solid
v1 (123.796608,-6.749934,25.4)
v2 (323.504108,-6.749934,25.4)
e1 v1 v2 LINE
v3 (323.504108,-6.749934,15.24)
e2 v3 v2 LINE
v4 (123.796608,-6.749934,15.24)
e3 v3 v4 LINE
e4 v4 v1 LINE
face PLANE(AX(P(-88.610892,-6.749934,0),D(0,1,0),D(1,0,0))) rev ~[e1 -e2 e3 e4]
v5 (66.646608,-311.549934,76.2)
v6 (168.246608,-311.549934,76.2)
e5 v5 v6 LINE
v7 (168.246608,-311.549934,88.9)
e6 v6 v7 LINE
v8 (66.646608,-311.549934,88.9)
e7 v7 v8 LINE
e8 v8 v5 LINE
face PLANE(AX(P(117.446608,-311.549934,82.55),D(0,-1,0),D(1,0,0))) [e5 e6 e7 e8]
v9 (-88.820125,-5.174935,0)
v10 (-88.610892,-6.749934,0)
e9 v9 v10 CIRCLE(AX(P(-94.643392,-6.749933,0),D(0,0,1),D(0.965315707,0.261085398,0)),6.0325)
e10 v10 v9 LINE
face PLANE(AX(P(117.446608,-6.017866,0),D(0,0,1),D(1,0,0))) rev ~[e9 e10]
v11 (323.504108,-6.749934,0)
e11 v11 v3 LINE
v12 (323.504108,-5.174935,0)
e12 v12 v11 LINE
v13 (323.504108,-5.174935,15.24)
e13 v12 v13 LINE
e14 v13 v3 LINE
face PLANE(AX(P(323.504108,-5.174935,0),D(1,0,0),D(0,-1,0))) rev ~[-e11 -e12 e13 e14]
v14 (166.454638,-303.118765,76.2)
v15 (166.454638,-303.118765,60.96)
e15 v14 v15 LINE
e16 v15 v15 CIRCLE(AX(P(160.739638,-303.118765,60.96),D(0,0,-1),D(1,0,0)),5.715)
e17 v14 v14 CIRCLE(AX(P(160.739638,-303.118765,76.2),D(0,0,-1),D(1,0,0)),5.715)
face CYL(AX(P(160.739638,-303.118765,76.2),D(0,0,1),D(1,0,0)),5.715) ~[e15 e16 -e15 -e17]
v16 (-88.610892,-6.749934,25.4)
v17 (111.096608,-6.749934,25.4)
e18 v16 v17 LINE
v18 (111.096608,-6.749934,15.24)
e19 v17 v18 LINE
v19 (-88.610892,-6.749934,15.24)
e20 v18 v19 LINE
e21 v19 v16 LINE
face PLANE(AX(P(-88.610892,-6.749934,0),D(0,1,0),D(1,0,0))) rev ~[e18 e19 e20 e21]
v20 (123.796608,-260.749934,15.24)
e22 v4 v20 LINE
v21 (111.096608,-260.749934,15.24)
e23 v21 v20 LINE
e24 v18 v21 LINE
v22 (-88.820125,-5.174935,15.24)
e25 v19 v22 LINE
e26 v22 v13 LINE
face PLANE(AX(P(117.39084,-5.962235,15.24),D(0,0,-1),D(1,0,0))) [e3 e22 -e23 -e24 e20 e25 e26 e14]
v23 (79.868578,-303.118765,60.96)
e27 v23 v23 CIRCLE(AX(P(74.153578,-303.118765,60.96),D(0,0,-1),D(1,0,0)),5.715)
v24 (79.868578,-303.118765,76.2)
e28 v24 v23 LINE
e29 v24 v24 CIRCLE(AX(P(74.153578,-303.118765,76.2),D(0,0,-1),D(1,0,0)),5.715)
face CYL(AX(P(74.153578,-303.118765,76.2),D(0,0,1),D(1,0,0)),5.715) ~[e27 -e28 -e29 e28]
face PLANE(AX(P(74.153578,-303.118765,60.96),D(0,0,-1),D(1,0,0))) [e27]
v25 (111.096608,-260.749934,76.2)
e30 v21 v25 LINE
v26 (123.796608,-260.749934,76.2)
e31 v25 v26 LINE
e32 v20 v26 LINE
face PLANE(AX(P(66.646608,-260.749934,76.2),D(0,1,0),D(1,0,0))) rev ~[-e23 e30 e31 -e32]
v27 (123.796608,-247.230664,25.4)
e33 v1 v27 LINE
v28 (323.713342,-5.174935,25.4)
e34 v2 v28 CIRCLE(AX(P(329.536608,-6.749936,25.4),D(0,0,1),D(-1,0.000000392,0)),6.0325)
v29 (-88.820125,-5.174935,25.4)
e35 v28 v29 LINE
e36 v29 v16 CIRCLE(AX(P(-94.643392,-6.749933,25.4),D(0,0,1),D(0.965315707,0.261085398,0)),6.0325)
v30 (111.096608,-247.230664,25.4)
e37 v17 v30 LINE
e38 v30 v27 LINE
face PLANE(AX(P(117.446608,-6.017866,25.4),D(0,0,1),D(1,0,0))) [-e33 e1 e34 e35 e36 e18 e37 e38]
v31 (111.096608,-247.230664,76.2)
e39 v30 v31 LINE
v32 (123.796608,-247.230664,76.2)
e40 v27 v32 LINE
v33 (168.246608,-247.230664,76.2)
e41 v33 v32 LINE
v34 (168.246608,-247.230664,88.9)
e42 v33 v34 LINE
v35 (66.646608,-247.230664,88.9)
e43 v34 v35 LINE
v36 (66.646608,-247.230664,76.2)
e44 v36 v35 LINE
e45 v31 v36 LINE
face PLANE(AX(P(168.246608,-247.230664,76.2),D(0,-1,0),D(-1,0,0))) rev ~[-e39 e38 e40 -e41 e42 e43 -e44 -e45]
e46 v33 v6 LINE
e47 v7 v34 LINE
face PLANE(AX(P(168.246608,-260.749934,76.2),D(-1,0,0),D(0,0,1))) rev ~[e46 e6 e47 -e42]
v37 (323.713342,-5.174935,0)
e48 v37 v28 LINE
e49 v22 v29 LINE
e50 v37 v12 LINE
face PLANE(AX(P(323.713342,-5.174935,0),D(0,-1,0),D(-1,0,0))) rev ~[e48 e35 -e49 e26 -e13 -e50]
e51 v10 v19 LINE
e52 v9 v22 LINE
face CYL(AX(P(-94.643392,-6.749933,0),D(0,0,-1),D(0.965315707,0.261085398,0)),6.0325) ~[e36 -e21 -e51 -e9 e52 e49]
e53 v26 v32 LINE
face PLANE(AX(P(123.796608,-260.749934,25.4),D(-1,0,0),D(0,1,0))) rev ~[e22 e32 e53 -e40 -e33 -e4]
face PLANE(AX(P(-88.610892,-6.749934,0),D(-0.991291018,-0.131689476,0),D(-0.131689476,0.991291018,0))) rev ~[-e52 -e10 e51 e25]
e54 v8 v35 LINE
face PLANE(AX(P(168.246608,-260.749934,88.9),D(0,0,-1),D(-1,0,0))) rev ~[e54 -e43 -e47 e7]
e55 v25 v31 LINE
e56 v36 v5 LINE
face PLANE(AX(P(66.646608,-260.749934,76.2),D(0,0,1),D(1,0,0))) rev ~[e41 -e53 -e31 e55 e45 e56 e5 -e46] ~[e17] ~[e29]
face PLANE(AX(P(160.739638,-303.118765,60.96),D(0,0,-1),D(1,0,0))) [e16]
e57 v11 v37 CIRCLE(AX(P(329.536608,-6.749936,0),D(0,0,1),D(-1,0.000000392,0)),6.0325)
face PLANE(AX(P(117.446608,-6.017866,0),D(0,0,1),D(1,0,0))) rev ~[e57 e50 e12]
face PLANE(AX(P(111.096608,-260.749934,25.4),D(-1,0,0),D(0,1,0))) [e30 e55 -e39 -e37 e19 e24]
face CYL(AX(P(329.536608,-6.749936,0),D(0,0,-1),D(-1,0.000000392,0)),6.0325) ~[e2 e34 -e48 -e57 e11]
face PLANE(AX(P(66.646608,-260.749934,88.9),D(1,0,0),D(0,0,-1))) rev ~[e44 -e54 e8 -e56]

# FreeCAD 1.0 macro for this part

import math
import FreeCAD as App
import Part
import Sketcher
from FreeCAD import Vector
Q = App.Units.Quantity

doc = App.newDocument("Part")
body = doc.addObject("PartDesign::Body", "Body")

sketch1 = body.newObject("Sketcher::SketchObject", "Sketch")
sketch1.AttachmentSupport = (doc.getObject("XY_Plane"), [""])
sketch1.MapMode = "FlatFace"
sketch1.addGeometry(Part.ArcOfCircle(Part.Circle(Vector(-94.643392, -6.749933, 0), Vector(0, 0, 1), 6.0325), math.radians(15.134476), math.radians(359.999988)), False)
sketch1.addGeometry(Part.LineSegment(Vector(-88.610892, -6.749934, 0), Vector(323.504108, -6.749934, 0)), False)
sketch1.addGeometry(Part.ArcOfCircle(Part.Circle(Vector(329.536608, -6.749936, 0), Vector(0, 0, 1), 6.0325), math.radians(179.999978), math.radians(524.865488)), False)
sketch1.addGeometry(Part.LineSegment(Vector(323.713342, -5.174935, 0), Vector(-88.820125, -5.174935, 0)), False)
sketch1.addConstraint(Sketcher.Constraint("Coincident", 0, 2, 1, 1))
sketch1.addConstraint(Sketcher.Constraint("Coincident", 1, 2, 2, 1))
sketch1.addConstraint(Sketcher.Constraint("Coincident", 2, 2, 3, 1))
sketch1.addConstraint(Sketcher.Constraint("Coincident", 3, 2, 0, 1))
sketch1.addConstraint(Sketcher.Constraint("Horizontal", 1))
sketch1.addConstraint(Sketcher.Constraint("Horizontal", 3))
sketch1.addConstraint(Sketcher.Constraint("Equal", 0, 2))
sketch1.addConstraint(Sketcher.Constraint("Radius", 0, Q("0.2375 in")))
sketch1.addConstraint(Sketcher.Constraint("DistanceX", 0, 3, 2, 3, Q("16.7 in")))
sketch1.addConstraint(Sketcher.Constraint("DistanceY", 1, 2, 2, 2, 1.574999))
sketch1.addConstraint(Sketcher.Constraint("DistanceY", 2, 3, 2, 2, 1.575001))
sketch1.addConstraint(Sketcher.Constraint("DistanceX", 3, 2, 3, 1, 412.533467))
sketch1.addConstraint(Sketcher.Constraint("DistanceX", 0, 3, -1, 1, 94.643392))
sketch1.addConstraint(Sketcher.Constraint("DistanceY", 0, 3, -1, 1, 6.749933))
pad1 = body.newObject("PartDesign::Pad", "Pad")
pad1.Profile = sketch1
pad1.Length = Q("1 in")

sketch2 = body.newObject("Sketcher::SketchObject", "Sketch001")
sketch2.AttachmentSupport = (doc.getObject("XY_Plane"), [""])
sketch2.MapMode = "FlatFace"
sketch2.addGeometry(Part.LineSegment(Vector(323.504108, -5.174935, 0), Vector(323.504108, -6.749934, 0)), False)
sketch2.addGeometry(Part.LineSegment(Vector(323.504108, -6.749934, 0), Vector(-88.610892, -6.749934, 0)), False)
sketch2.addGeometry(Part.LineSegment(Vector(-88.610892, -6.749934, 0), Vector(-88.820125, -5.174935, 0)), False)
sketch2.addGeometry(Part.LineSegment(Vector(-88.820125, -5.174935, 0), Vector(323.504108, -5.174935, 0)), False)
sketch2.addConstraint(Sketcher.Constraint("Coincident", 0, 2, 1, 1))
sketch2.addConstraint(Sketcher.Constraint("Coincident", 1, 2, 2, 1))
sketch2.addConstraint(Sketcher.Constraint("Coincident", 2, 2, 3, 1))
sketch2.addConstraint(Sketcher.Constraint("Coincident", 3, 2, 0, 1))
sketch2.addConstraint(Sketcher.Constraint("Vertical", 0))
sketch2.addConstraint(Sketcher.Constraint("Horizontal", 1))
sketch2.addConstraint(Sketcher.Constraint("Horizontal", 3))
sketch2.addConstraint(Sketcher.Constraint("DistanceX", 1, 2, 1, 1, Q("16.225 in")))
sketch2.addConstraint(Sketcher.Constraint("DistanceY", 0, 2, 0, 1, 1.574999))
sketch2.addConstraint(Sketcher.Constraint("DistanceX", 3, 1, 3, 2, 412.324233))
sketch2.addConstraint(Sketcher.Constraint("DistanceX", -1, 1, 0, 2, 323.504108))
sketch2.addConstraint(Sketcher.Constraint("DistanceY", 0, 2, -1, 1, 6.749934))
pocket1 = body.newObject("PartDesign::Pocket", "Pocket")
pocket1.Profile = sketch2
pocket1.Length = Q("0.6 in")
pocket1.Reversed = True

sketch3 = body.newObject("Sketcher::SketchObject", "Sketch002")
sketch3.AttachmentSupport = (doc.getObject("XZ_Plane"), [""])
sketch3.MapMode = "FlatFace"
sketch3.AttachmentOffset = App.Placement(Vector(0, 0, 6.749934), App.Rotation())
sketch3.addGeometry(Part.LineSegment(Vector(123.796608, 25.4, 0), Vector(111.096608, 25.4, 0)), False)
sketch3.addGeometry(Part.LineSegment(Vector(111.096608, 25.4, 0), Vector(111.096608, 15.24, 0)), False)
sketch3.addGeometry(Part.LineSegment(Vector(111.096608, 15.24, 0), Vector(123.796608, 15.24, 0)), False)
sketch3.addGeometry(Part.LineSegment(Vector(123.796608, 15.24, 0), Vector(123.796608, 25.4, 0)), False)
sketch3.addConstraint(Sketcher.Constraint("Coincident", 0, 2, 1, 1))
sketch3.addConstraint(Sketcher.Constraint("Coincident", 1, 2, 2, 1))
sketch3.addConstraint(Sketcher.Constraint("Coincident", 2, 2, 3, 1))
sketch3.addConstraint(Sketcher.Constraint("Coincident", 3, 2, 0, 1))
sketch3.addConstraint(Sketcher.Constraint("Horizontal", 0))
sketch3.addConstraint(Sketcher.Constraint("Vertical", 1))
sketch3.addConstraint(Sketcher.Constraint("Horizontal", 2))
sketch3.addConstraint(Sketcher.Constraint("Vertical", 3))
sketch3.addConstraint(Sketcher.Constraint("DistanceX", 0, 2, 0, 1, Q("0.5 in")))
sketch3.addConstraint(Sketcher.Constraint("DistanceY", 1, 2, 1, 1, Q("0.4 in")))
sketch3.addConstraint(Sketcher.Constraint("DistanceY", -1, 1, 0, 2, Q("1 in")))
sketch3.addConstraint(Sketcher.Constraint("DistanceX", -1, 1, 0, 2, 111.096608))
pad2 = body.newObject("PartDesign::Pad", "Pad001")
pad2.Profile = sketch3
pad2.Length = Q("10 in")

sketch4 = body.newObject("Sketcher::SketchObject", "Sketch003")
sketch4.AttachmentSupport = (doc.getObject("XY_Plane"), [""])
sketch4.MapMode = "FlatFace"
sketch4.AttachmentOffset = App.Placement(Vector(0, 0, 1 * 25.4), App.Rotation())
sketch4.addGeometry(Part.LineSegment(Vector(111.096608, -247.230664, 0), Vector(111.096608, -260.749934, 0)), False)
sketch4.addGeometry(Part.LineSegment(Vector(111.096608, -260.749934, 0), Vector(123.796608, -260.749934, 0)), False)
sketch4.addGeometry(Part.LineSegment(Vector(123.796608, -260.749934, 0), Vector(123.796608, -247.230664, 0)), False)
sketch4.addGeometry(Part.LineSegment(Vector(123.796608, -247.230664, 0), Vector(111.096608, -247.230664, 0)), False)
sketch4.addConstraint(Sketcher.Constraint("Coincident", 0, 2, 1, 1))
sketch4.addConstraint(Sketcher.Constraint("Coincident", 1, 2, 2, 1))
sketch4.addConstraint(Sketcher.Constraint("Coincident", 2, 2, 3, 1))
sketch4.addConstraint(Sketcher.Constraint("Coincident", 3, 2, 0, 1))
sketch4.addConstraint(Sketcher.Constraint("Vertical", 0))
sketch4.addConstraint(Sketcher.Constraint("Horizontal", 1))
sketch4.addConstraint(Sketcher.Constraint("Vertical", 2))
sketch4.addConstraint(Sketcher.Constraint("Horizontal", 3))
sketch4.addConstraint(Sketcher.Constraint("DistanceX", 1, 1, 1, 2, Q("0.5 in")))
sketch4.addConstraint(Sketcher.Constraint("DistanceY", 0, 2, 0, 1, 13.51927))
sketch4.addConstraint(Sketcher.Constraint("DistanceX", -1, 1, 0, 2, 111.096608))
sketch4.addConstraint(Sketcher.Constraint("DistanceY", 0, 2, -1, 1, 260.749934))
pad3 = body.newObject("PartDesign::Pad", "Pad002")
pad3.Profile = sketch4
pad3.Length = Q("2 in")

sketch5 = body.newObject("Sketcher::SketchObject", "Sketch004")
sketch5.AttachmentSupport = (doc.getObject("XY_Plane"), [""])
sketch5.MapMode = "FlatFace"
sketch5.AttachmentOffset = App.Placement(Vector(0, 0, 3 * 25.4), App.Rotation())
sketch5.addGeometry(Part.LineSegment(Vector(168.246608, -247.230664, 0), Vector(66.646608, -247.230664, 0)), False)
sketch5.addGeometry(Part.LineSegment(Vector(66.646608, -247.230664, 0), Vector(66.646608, -260.749934, 0)), False)
sketch5.addGeometry(Part.LineSegment(Vector(66.646608, -260.749934, 0), Vector(168.246608, -260.749934, 0)), False)
sketch5.addGeometry(Part.LineSegment(Vector(168.246608, -260.749934, 0), Vector(168.246608, -247.230664, 0)), False)
sketch5.addConstraint(Sketcher.Constraint("Coincident", 0, 2, 1, 1))
sketch5.addConstraint(Sketcher.Constraint("Coincident", 1, 2, 2, 1))
sketch5.addConstraint(Sketcher.Constraint("Coincident", 2, 2, 3, 1))
sketch5.addConstraint(Sketcher.Constraint("Coincident", 3, 2, 0, 1))
sketch5.addConstraint(Sketcher.Constraint("Horizontal", 0))
sketch5.addConstraint(Sketcher.Constraint("Vertical", 1))
sketch5.addConstraint(Sketcher.Constraint("Horizontal", 2))
sketch5.addConstraint(Sketcher.Constraint("Vertical", 3))
sketch5.addConstraint(Sketcher.Constraint("DistanceX", 0, 2, 0, 1, Q("4 in")))
sketch5.addConstraint(Sketcher.Constraint("DistanceY", 1, 2, 1, 1, 13.51927))
sketch5.addConstraint(Sketcher.Constraint("DistanceX", -1, 1, 0, 2, 66.646608))
sketch5.addConstraint(Sketcher.Constraint("DistanceY", 0, 2, -1, 1, 247.230664))
pad4 = body.newObject("PartDesign::Pad", "Pad003")
pad4.Profile = sketch5
pad4.Length = Q("0.5 in")

sketch6 = body.newObject("Sketcher::SketchObject", "Sketch005")
sketch6.AttachmentSupport = (doc.getObject("XZ_Plane"), [""])
sketch6.MapMode = "FlatFace"
sketch6.AttachmentOffset = App.Placement(Vector(0, 0, 260.749934), App.Rotation())
sketch6.addGeometry(Part.LineSegment(Vector(66.646608, 88.9, 0), Vector(66.646608, 76.2, 0)), False)
sketch6.addGeometry(Part.LineSegment(Vector(66.646608, 76.2, 0), Vector(168.246608, 76.2, 0)), False)
sketch6.addGeometry(Part.LineSegment(Vector(168.246608, 76.2, 0), Vector(168.246608, 88.9, 0)), False)
sketch6.addGeometry(Part.LineSegment(Vector(168.246608, 88.9, 0), Vector(66.646608, 88.9, 0)), False)
sketch6.addConstraint(Sketcher.Constraint("Coincident", 0, 2, 1, 1))
sketch6.addConstraint(Sketcher.Constraint("Coincident", 1, 2, 2, 1))
sketch6.addConstraint(Sketcher.Constraint("Coincident", 2, 2, 3, 1))
sketch6.addConstraint(Sketcher.Constraint("Coincident", 3, 2, 0, 1))
sketch6.addConstraint(Sketcher.Constraint("Vertical", 0))
sketch6.addConstraint(Sketcher.Constraint("Horizontal", 1))
sketch6.addConstraint(Sketcher.Constraint("Vertical", 2))
sketch6.addConstraint(Sketcher.Constraint("Horizontal", 3))
sketch6.addConstraint(Sketcher.Constraint("DistanceX", 1, 1, 1, 2, Q("4 in")))
sketch6.addConstraint(Sketcher.Constraint("DistanceY", 0, 2, 0, 1, Q("0.5 in")))
sketch6.addConstraint(Sketcher.Constraint("DistanceY", -1, 1, 0, 2, Q("3 in")))
sketch6.addConstraint(Sketcher.Constraint("DistanceX", -1, 1, 0, 2, 66.646608))
pad5 = body.newObject("PartDesign::Pad", "Pad004")
pad5.Profile = sketch6
pad5.Length = Q("2 in")

sketch7 = body.newObject("Sketcher::SketchObject", "Sketch006")
sketch7.AttachmentSupport = (doc.getObject("XY_Plane"), [""])
sketch7.MapMode = "FlatFace"
sketch7.AttachmentOffset = App.Placement(Vector(0, 0, 3 * 25.4), App.Rotation())
sketch7.addGeometry(Part.Circle(Vector(74.153578, -303.118765, 0), Vector(0, 0, 1), 5.715), False)
sketch7.addGeometry(Part.Circle(Vector(160.739638, -303.118765, 0), Vector(0, 0, 1), 5.715), False)
sketch7.addConstraint(Sketcher.Constraint("Equal", 0, 1))
sketch7.addConstraint(Sketcher.Constraint("Horizontal", 0, 3, 1, 3))
sketch7.addConstraint(Sketcher.Constraint("Diameter", 0, Q("0.45 in")))
sketch7.addConstraint(Sketcher.Constraint("DistanceX", 0, 3, 1, 3, Q("3.4089 in")))
sketch7.addConstraint(Sketcher.Constraint("DistanceX", -1, 1, 1, 3, 160.739638))
sketch7.addConstraint(Sketcher.Constraint("DistanceY", 0, 3, -1, 1, 303.118765))
pad6 = body.newObject("PartDesign::Pad", "Pad005")
pad6.Profile = sketch7
pad6.Length = Q("0.6 in")
pad6.Reversed = True

doc.recompute()
